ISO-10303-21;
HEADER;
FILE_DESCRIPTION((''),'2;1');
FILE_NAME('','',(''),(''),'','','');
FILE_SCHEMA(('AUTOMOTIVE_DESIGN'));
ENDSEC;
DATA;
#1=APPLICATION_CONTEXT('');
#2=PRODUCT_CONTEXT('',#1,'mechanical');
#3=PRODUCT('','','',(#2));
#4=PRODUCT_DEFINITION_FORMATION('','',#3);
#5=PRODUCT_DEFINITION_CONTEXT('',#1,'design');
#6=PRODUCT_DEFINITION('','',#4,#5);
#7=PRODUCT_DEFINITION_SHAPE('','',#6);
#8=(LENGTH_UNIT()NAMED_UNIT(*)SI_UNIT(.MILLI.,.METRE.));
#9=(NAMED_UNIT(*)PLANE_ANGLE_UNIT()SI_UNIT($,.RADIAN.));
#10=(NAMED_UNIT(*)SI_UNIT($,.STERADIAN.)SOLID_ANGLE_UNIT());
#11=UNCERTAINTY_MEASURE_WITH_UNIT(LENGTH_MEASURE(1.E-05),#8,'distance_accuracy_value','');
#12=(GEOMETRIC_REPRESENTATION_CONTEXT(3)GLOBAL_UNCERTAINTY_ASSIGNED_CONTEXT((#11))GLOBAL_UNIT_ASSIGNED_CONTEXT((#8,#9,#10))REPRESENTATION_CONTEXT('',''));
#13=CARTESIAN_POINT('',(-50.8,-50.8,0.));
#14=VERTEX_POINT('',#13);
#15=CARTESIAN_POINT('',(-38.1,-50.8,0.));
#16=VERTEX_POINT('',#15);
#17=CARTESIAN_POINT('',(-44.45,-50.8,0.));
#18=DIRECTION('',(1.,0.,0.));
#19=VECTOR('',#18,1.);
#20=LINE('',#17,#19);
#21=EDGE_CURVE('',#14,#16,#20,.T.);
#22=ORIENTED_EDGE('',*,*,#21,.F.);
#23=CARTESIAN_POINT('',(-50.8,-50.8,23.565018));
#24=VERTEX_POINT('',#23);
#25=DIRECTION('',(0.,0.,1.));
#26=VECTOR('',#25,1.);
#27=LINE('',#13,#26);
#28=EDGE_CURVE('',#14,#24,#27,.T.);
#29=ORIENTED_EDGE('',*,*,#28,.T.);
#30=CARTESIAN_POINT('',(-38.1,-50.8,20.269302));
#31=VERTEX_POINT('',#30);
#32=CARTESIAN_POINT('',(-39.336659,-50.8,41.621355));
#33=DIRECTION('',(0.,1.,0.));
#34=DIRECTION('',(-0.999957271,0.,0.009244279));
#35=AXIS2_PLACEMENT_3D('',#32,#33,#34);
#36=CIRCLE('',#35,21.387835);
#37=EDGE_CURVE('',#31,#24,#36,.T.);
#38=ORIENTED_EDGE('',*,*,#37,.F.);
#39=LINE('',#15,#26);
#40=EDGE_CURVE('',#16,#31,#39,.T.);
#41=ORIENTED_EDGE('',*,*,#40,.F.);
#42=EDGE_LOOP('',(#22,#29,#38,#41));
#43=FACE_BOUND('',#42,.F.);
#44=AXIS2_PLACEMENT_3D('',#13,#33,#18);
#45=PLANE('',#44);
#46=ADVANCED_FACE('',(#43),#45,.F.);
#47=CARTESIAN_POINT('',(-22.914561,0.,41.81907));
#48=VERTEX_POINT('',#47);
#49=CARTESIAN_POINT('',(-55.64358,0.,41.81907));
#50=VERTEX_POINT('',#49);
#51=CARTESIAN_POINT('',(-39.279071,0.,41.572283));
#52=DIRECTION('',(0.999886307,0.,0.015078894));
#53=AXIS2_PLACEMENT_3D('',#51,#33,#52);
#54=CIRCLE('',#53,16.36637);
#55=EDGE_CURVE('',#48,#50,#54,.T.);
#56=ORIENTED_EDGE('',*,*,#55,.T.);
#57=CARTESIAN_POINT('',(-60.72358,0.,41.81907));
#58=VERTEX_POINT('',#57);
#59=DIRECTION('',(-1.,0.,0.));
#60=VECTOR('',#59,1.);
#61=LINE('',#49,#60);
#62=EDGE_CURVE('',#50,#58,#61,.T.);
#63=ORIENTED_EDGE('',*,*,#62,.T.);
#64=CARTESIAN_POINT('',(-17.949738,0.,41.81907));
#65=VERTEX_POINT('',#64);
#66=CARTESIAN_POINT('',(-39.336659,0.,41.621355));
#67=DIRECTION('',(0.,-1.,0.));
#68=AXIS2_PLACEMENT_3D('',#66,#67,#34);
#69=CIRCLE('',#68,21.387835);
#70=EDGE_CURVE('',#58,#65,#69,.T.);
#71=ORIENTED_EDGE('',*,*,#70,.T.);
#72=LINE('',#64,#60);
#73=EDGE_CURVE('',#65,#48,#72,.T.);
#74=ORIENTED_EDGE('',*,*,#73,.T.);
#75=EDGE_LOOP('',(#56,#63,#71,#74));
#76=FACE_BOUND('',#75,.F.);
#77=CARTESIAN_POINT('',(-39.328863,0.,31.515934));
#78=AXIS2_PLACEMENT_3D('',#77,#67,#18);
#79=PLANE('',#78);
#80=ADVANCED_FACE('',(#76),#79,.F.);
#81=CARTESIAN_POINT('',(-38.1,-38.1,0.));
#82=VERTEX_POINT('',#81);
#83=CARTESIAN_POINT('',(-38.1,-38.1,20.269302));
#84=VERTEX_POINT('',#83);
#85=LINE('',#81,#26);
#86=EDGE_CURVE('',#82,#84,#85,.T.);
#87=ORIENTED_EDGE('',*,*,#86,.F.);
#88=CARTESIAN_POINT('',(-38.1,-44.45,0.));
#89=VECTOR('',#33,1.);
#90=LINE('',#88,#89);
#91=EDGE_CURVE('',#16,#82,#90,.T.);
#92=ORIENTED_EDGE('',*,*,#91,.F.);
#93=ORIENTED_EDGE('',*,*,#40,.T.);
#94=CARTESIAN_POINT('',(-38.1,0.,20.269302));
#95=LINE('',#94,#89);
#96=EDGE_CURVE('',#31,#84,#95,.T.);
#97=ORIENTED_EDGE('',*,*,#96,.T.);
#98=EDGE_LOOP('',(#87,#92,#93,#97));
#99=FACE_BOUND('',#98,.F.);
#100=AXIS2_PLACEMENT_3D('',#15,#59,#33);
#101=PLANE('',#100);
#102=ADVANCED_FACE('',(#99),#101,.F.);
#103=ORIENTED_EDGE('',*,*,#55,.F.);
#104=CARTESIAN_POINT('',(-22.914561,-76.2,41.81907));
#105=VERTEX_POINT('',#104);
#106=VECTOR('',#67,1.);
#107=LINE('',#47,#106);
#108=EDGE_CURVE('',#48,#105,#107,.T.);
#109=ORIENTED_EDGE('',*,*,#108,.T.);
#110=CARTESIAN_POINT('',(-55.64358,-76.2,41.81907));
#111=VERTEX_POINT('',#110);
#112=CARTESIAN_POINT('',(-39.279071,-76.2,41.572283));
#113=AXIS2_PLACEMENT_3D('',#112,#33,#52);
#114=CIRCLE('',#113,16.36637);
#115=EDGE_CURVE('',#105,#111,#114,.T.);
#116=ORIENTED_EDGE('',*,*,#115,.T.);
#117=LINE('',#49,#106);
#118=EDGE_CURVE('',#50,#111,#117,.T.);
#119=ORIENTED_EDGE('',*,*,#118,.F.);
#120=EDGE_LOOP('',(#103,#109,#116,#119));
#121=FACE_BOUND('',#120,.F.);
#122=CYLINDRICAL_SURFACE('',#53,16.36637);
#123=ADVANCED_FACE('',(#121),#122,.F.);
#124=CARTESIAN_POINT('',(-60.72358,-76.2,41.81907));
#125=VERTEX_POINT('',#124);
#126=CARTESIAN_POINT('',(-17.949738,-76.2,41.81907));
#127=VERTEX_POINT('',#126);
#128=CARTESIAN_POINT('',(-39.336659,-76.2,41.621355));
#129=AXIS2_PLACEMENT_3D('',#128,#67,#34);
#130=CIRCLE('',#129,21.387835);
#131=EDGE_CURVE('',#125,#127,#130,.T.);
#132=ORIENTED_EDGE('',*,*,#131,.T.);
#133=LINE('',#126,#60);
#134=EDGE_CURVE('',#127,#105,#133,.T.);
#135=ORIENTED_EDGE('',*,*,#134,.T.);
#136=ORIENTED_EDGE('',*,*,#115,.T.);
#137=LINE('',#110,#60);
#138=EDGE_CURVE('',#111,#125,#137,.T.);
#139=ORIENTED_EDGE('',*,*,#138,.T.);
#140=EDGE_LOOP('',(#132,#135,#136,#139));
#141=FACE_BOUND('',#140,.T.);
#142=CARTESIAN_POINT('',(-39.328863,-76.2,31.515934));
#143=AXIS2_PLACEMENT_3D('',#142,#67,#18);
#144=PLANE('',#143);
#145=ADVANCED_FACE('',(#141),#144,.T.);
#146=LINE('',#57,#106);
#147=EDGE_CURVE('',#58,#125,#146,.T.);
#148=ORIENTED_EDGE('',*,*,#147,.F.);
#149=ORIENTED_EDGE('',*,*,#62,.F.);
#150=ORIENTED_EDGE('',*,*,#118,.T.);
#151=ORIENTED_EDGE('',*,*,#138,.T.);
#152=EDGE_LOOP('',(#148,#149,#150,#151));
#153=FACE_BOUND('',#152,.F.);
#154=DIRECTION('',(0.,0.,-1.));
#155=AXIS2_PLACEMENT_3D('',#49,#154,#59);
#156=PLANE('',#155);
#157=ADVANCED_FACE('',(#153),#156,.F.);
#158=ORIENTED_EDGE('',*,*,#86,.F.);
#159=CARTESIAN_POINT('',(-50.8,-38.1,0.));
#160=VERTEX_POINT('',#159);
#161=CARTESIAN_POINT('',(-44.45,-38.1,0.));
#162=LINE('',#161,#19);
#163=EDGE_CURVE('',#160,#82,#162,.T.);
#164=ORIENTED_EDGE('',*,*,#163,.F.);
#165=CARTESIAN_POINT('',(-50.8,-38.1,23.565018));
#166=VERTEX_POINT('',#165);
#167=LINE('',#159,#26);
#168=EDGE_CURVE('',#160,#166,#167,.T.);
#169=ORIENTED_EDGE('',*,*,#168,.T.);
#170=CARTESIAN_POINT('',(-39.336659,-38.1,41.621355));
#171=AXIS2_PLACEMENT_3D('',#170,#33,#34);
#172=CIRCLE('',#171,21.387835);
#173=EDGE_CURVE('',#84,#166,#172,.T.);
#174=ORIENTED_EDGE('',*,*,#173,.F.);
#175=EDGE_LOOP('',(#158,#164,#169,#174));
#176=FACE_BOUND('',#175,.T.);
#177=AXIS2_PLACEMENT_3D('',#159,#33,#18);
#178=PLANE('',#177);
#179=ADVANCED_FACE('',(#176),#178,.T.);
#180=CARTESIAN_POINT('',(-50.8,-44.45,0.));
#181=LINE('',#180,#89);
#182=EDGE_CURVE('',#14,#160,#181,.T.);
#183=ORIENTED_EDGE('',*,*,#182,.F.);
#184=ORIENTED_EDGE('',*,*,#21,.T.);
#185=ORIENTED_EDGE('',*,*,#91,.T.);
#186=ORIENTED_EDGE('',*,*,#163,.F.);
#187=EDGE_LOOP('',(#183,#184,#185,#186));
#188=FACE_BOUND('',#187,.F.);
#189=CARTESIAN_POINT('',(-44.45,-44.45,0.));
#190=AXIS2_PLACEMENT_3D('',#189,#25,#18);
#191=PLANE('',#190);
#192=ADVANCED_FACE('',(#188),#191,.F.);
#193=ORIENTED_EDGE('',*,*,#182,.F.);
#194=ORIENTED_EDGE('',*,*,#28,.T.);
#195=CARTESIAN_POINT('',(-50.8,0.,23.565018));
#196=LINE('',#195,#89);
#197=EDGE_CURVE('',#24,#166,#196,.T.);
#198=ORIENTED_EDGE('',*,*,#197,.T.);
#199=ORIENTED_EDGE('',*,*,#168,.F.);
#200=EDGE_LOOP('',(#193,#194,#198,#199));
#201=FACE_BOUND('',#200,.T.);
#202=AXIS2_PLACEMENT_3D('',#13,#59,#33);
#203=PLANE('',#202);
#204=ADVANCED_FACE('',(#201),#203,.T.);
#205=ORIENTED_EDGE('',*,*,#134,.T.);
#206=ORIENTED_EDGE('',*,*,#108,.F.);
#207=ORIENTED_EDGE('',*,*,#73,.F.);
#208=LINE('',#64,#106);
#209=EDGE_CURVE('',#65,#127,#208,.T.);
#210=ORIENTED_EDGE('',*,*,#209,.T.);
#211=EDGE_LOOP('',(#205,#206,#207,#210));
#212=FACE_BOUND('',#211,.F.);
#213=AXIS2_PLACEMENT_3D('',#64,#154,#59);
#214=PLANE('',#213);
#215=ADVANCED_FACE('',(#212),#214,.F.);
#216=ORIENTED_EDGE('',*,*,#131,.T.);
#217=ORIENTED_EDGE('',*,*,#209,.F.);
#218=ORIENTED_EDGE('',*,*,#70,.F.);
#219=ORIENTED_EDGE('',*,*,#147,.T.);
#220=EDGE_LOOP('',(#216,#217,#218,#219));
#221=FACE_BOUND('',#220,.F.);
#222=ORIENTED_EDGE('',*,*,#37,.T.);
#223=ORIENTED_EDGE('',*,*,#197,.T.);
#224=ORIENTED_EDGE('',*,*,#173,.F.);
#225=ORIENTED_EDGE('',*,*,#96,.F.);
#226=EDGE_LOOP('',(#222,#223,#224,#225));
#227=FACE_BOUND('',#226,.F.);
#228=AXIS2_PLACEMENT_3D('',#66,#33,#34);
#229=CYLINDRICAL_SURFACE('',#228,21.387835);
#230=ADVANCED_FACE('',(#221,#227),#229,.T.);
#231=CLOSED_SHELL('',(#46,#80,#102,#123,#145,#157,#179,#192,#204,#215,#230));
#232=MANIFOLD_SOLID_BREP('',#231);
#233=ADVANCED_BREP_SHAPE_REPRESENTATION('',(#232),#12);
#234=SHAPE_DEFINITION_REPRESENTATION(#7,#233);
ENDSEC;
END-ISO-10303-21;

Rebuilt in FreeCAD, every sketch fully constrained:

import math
import FreeCAD as App
import Part
import Sketcher
Q = App.Units.Quantity

doc = App.newDocument("Part")
params = doc.addObject("Spreadsheet::Sheet", "Params")
for row, (alias, value) in enumerate([
    ("sketch1_width", "0.2 in"),
    ("pad1_length", "3 in"),
    ("sketch2_width", "0.5 in"),
    ("pad2_length", "0.93 in"),
], start=1):
    params.set(f"A{row}", alias)
    params.set(f"B{row}", "=" + value)
    params.setAlias(f"B{row}", alias)

body = doc.addObject("PartDesign::Body", "Body")

sketch1 = doc.addObject("Sketcher::SketchObject", "Sketch")
body.addObject(sketch1)
sketch1.AttachmentSupport = (doc.XZ_Plane, [""])
sketch1.MapMode = "FlatFace"
sketch1.addGeometry([
    Part.LineSegment(App.Vector(-55.6, 41.8, 0), App.Vector(-60.7, 41.8, 0)),
    Part.ArcOfCircle(Part.Circle(App.Vector(-39.3, 41.6, 0), App.Vector(0, 0, 1), 21.4), math.radians(179), math.radians(361)),
    Part.LineSegment(App.Vector(-17.9, 41.8, 0), App.Vector(-22.9, 41.8, 0)),
    Part.ArcOfCircle(Part.Circle(App.Vector(-39.3, 41.6, 0), App.Vector(0, 0, 1), 16.4), math.radians(179), math.radians(361)),
], False)
sketch1.addConstraint([
    Sketcher.Constraint("Coincident", 0, 2, 1, 1),
    Sketcher.Constraint("Coincident", 1, 2, 2, 1),
    Sketcher.Constraint("Coincident", 2, 2, 3, 2),
    Sketcher.Constraint("Coincident", 3, 1, 0, 1),
    Sketcher.Constraint("Horizontal", 0),
    Sketcher.Constraint("Horizontal", 2),
    Sketcher.Constraint("Horizontal", 0, 2, 1, 2),
    Sketcher.Constraint("DistanceX", 0, 2, 0, 1, Q("0.2 in")),
    Sketcher.Constraint("Radius", 3, 16.36637),
    Sketcher.Constraint("Radius", 1, 21.387835),
    Sketcher.Constraint("DistanceX", 2, 2, 2, 1, 4.964823),
    Sketcher.Constraint("DistanceX", 1, 3, -1, 1, 39.336659),
    Sketcher.Constraint("DistanceX", 0, 2, -1, 1, 60.72358),
    Sketcher.Constraint("DistanceY", -1, 1, 0, 2, 41.81907),
])
sketch1.setExpression("Constraints[7]", "Params.sketch1_width")
pad1 = doc.addObject("PartDesign::Pad", "Pad")
body.addObject(pad1)
pad1.Profile = sketch1
pad1.setExpression("Length", "Params.pad1_length")

sketch2 = doc.addObject("Sketcher::SketchObject", "Sketch001")
body.addObject(sketch2)
sketch2.AttachmentSupport = (doc.XY_Plane, [""])
sketch2.MapMode = "FlatFace"
sketch2.addGeometry([
    Part.LineSegment(App.Vector(-51, -38, 0), App.Vector(-51, -51, 0)),
    Part.LineSegment(App.Vector(-51, -51, 0), App.Vector(-38, -51, 0)),
    Part.LineSegment(App.Vector(-38, -51, 0), App.Vector(-38, -38, 0)),
    Part.LineSegment(App.Vector(-38, -38, 0), App.Vector(-51, -38, 0)),
], False)
sketch2.addConstraint([
    Sketcher.Constraint("Coincident", 0, 2, 1, 1),
    Sketcher.Constraint("Coincident", 1, 2, 2, 1),
    Sketcher.Constraint("Coincident", 2, 2, 3, 1),
    Sketcher.Constraint("Coincident", 3, 2, 0, 1),
    Sketcher.Constraint("Vertical", 0),
    Sketcher.Constraint("Horizontal", 1),
    Sketcher.Constraint("Vertical", 2),
    Sketcher.Constraint("Horizontal", 3),
    Sketcher.Constraint("Equal", 3, 0),
    Sketcher.Constraint("DistanceX", 1, 1, 1, 2, Q("0.5 in")),
    Sketcher.Constraint("DistanceX", 0, 2, -1, 1, Q("2 in")),
    Sketcher.Constraint("DistanceY", 0, 2, -1, 1, Q("2 in")),
])
sketch2.setExpression("Constraints[9]", "Params.sketch2_width")
pad2 = doc.addObject("PartDesign::Pad", "Pad001")
body.addObject(pad2)
pad2.Profile = sketch2
pad2.setExpression("Length", "Params.pad2_length")

doc.recompute()
